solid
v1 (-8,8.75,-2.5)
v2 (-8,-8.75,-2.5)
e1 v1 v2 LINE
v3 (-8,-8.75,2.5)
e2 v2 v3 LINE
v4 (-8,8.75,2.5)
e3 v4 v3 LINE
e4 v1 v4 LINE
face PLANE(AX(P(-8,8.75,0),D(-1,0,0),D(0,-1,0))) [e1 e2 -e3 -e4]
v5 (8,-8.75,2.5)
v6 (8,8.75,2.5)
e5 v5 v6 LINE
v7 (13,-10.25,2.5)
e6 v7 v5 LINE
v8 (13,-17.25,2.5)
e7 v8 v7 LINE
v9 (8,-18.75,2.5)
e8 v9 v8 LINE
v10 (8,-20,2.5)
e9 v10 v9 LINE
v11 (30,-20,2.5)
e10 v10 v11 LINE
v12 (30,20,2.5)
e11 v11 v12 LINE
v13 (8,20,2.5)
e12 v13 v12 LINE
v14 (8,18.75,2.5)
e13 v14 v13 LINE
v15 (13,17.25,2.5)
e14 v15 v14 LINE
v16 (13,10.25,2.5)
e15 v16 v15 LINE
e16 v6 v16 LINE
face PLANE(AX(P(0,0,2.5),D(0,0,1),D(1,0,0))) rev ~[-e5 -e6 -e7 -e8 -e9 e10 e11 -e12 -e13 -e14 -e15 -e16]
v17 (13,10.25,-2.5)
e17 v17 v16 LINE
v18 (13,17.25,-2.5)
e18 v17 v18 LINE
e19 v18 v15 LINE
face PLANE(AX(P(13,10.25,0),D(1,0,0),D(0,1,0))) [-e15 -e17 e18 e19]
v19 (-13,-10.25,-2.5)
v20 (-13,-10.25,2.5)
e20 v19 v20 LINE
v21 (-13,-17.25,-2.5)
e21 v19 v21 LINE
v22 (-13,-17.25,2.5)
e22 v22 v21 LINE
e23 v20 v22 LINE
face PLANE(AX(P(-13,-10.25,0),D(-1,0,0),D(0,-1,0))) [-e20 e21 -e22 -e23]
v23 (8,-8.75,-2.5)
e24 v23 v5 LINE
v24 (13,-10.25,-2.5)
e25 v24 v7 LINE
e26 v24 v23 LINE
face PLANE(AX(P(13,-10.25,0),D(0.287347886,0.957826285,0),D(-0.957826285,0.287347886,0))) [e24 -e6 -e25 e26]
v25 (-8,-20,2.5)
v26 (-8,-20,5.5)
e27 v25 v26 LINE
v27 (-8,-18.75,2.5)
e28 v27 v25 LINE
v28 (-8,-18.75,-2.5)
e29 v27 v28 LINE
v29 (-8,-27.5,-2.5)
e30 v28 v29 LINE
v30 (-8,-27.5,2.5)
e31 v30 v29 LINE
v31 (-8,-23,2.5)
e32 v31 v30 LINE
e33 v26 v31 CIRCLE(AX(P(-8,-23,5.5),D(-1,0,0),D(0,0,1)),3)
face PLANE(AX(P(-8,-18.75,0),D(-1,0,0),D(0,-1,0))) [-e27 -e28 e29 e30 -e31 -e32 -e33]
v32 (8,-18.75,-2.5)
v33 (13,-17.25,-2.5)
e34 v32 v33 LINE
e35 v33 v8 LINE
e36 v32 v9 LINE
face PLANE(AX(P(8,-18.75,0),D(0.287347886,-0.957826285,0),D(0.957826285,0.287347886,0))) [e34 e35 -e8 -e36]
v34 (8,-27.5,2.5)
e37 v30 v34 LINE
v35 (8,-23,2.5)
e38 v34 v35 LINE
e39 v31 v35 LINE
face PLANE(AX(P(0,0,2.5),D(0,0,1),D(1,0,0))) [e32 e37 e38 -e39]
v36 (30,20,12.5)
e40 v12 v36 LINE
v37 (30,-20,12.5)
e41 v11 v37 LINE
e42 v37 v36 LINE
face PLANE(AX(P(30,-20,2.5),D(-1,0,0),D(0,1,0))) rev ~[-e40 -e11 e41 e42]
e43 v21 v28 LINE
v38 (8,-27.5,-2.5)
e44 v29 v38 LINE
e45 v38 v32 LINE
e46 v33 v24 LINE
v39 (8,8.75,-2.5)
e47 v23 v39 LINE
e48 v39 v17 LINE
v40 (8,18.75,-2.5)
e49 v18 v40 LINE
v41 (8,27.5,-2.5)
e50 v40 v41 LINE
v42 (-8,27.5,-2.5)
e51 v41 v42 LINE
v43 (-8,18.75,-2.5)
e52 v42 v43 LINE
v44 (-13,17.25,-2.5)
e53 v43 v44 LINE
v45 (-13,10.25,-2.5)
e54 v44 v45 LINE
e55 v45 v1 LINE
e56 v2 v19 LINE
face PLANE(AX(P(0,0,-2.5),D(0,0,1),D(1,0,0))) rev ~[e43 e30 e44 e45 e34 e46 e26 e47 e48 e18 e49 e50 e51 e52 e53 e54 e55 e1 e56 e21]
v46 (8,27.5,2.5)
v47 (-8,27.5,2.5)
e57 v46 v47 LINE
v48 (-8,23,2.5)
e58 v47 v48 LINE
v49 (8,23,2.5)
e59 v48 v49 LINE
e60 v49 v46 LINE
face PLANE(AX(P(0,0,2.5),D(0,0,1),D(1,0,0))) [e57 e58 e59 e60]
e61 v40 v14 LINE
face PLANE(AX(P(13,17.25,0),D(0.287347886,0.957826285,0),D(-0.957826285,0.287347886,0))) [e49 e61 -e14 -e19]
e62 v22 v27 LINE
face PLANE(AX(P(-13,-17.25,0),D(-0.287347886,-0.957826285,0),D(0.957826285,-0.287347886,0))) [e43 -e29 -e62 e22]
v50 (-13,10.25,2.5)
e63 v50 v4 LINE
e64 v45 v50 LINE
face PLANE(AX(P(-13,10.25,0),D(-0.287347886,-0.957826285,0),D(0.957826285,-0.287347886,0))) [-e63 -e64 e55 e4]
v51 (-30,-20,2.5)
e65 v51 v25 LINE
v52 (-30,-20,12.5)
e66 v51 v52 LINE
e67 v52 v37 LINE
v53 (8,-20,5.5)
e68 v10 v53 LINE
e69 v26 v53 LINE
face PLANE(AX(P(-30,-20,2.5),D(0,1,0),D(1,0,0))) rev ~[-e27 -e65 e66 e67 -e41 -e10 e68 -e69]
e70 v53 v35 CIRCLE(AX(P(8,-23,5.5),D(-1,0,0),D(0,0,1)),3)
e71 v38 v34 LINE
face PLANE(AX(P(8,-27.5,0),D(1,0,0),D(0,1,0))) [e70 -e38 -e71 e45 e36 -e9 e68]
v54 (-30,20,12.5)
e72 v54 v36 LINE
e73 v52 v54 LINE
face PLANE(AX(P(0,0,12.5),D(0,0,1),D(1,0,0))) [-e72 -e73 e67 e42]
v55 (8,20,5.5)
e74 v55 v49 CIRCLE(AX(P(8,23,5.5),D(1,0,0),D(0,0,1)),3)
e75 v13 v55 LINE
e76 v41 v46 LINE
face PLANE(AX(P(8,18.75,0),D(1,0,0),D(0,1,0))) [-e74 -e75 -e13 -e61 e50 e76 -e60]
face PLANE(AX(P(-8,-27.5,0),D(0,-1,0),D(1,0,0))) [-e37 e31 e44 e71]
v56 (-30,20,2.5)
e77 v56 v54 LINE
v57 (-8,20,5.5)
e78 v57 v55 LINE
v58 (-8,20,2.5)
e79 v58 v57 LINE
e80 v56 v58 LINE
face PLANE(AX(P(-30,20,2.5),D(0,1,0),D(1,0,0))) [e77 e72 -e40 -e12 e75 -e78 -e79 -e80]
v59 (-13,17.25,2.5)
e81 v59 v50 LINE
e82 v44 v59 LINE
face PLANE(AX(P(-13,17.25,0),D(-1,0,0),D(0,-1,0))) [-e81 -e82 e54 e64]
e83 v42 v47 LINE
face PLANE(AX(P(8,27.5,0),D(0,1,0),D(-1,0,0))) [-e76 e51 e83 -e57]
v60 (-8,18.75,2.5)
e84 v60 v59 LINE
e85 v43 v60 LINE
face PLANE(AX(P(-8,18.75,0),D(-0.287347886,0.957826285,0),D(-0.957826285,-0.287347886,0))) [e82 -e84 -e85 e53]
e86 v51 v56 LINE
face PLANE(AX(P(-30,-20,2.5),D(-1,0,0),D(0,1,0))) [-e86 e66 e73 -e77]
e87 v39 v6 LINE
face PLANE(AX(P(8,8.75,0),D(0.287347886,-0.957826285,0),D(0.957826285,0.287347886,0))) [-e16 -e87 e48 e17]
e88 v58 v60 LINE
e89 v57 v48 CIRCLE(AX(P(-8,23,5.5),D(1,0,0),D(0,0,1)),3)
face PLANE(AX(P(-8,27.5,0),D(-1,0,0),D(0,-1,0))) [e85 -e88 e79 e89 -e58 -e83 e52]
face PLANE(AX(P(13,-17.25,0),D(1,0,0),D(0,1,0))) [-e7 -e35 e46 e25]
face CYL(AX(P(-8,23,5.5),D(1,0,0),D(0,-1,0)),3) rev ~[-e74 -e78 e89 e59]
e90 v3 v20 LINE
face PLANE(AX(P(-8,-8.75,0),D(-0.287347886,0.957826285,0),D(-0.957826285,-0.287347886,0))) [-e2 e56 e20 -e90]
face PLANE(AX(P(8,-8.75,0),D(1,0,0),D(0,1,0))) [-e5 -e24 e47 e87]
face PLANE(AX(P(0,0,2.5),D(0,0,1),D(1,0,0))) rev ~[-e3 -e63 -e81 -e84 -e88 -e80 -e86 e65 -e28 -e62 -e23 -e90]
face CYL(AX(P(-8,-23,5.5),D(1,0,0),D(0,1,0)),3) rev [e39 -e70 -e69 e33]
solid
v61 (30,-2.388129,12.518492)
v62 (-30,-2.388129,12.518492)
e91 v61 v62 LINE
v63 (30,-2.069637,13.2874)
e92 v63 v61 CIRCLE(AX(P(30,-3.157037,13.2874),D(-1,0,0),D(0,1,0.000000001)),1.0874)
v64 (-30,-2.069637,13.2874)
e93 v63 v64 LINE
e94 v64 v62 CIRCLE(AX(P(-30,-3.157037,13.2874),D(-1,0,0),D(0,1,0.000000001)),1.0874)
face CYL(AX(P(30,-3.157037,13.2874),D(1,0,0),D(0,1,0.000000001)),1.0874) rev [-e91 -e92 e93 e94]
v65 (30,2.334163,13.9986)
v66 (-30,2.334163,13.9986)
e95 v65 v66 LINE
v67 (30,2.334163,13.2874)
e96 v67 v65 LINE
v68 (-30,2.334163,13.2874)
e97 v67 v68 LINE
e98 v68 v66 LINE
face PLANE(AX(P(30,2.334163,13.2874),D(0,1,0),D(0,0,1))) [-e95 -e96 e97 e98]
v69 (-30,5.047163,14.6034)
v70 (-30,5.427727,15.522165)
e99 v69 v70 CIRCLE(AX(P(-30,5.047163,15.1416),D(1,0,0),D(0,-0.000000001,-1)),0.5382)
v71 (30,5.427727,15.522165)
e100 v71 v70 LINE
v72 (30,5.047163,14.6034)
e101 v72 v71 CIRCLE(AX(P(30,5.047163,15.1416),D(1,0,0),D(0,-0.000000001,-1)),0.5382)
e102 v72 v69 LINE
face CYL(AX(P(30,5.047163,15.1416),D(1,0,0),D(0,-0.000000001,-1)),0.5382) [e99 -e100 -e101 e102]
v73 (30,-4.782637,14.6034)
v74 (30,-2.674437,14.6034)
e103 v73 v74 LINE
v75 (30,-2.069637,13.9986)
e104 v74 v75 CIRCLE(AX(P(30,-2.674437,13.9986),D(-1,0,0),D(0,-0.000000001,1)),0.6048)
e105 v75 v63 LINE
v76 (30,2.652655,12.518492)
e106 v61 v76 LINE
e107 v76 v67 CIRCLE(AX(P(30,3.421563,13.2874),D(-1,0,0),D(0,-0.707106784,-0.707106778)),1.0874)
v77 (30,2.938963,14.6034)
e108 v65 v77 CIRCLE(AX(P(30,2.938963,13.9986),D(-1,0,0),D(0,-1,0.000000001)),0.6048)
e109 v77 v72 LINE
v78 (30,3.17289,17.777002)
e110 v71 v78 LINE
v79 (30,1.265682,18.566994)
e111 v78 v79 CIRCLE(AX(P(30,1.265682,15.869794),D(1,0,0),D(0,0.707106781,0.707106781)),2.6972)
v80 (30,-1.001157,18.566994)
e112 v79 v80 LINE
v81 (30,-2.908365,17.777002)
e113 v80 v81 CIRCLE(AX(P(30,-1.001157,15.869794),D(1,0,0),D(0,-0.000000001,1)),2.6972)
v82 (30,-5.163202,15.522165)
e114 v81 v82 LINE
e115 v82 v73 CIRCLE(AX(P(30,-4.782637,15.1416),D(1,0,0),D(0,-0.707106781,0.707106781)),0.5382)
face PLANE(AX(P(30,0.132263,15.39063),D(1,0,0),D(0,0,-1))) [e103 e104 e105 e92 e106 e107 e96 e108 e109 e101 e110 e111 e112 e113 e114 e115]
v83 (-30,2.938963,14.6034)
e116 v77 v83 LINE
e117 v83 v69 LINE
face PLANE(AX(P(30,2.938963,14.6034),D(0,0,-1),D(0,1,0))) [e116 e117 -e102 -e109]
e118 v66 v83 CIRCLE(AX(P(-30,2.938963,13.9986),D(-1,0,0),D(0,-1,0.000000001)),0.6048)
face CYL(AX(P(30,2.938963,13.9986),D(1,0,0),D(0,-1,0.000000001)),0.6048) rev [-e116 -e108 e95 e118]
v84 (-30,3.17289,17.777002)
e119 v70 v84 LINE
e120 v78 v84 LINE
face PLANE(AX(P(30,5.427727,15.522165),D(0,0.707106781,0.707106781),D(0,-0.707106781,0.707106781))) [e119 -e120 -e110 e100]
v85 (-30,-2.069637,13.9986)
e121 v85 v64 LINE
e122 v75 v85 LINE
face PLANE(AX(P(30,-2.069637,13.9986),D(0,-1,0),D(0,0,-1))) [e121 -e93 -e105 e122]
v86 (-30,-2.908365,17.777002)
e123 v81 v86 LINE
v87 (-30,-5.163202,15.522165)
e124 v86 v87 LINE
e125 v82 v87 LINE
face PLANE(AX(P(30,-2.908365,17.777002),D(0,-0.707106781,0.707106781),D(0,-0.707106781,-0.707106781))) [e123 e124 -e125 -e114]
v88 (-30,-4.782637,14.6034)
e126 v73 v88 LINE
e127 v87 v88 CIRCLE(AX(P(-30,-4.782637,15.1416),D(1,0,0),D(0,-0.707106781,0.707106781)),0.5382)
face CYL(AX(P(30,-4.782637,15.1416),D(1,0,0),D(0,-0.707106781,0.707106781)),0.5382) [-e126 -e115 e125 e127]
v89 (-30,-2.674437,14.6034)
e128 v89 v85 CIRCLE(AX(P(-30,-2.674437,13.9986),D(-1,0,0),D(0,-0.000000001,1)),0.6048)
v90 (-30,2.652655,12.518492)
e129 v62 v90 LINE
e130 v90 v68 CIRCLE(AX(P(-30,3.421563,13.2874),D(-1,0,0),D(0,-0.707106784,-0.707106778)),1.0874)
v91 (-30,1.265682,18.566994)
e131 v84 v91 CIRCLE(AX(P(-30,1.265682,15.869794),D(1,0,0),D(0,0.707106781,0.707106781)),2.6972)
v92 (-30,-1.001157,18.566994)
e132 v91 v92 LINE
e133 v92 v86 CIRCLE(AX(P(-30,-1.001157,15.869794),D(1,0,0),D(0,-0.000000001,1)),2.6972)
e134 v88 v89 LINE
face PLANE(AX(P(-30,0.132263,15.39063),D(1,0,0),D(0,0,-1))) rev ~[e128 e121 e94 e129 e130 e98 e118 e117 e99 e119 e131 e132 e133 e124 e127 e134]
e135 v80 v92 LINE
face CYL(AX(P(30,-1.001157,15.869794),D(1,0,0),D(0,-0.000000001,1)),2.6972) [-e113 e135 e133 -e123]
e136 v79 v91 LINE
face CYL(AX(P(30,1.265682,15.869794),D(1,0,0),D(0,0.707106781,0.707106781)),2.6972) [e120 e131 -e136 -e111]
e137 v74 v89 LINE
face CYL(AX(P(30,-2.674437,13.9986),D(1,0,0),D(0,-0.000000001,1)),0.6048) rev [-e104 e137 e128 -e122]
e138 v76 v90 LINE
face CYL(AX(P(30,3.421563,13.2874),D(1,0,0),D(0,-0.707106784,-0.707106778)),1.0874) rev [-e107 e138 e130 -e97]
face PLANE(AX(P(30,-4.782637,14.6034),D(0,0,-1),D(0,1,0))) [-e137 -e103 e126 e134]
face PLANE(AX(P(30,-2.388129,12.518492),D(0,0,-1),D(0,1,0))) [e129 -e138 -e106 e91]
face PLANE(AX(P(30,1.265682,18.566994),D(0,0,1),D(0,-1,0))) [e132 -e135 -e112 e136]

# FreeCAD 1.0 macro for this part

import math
import FreeCAD as App
import Part
import Sketcher
from FreeCAD import Vector
Q = App.Units.Quantity


def edges_at(feature, points):
    """Names of the edges that pass closest to the given points."""
    edges = feature.Shape.Edges
    near = lambda p: min(range(len(edges)), key=lambda i: edges[i].distToShape(Part.Vertex(*p))[0])
    return sorted({f"Edge{near(p) + 1}" for p in points})


def add_polygon(sketch, points):
    """Adds a closed chain of lines whose ends are joined by coincident constraints."""
    first, n = sketch.GeometryCount, len(points)
    for a, b in zip(points, points[1:] + points[:1]):
        sketch.addGeometry(Part.LineSegment(App.Vector(*a, 0), App.Vector(*b, 0)), False)
    for i in range(n):
        sketch.addConstraint(Sketcher.Constraint("Coincident", first + i, 2, first + (i + 1) % n, 1))

doc = App.newDocument("Part")
params = doc.addObject("Spreadsheet::Sheet", "Params")
for row, (alias, value) in enumerate([
    ("sketch1_width", "16 mm"),
    ("sketch1_height", "7 mm"),
    ("sketch1_height2", "17.5 mm"),
    ("sketch1_height3", "8.75 mm"),
    ("pad1_length", "5 mm"),
    ("sketch2_width", "60 mm"),
    ("sketch2_height", "40 mm"),
    ("pad2_length", "10 mm"),
    ("fillet_radius", "3 mm"),
    ("pad3_length", "60 mm"),
], start=1):
    params.set(f"A{row}", alias)
    params.set(f"B{row}", "=" + value)
    params.setAlias(f"B{row}", alias)

body = doc.addObject("PartDesign::Body", "Body")

sketch1 = doc.addObject("Sketcher::SketchObject", "Sketch")
body.addObject(sketch1)
sketch1.AttachmentSupport = (doc.XY_Plane, [""])
sketch1.MapMode = "FlatFace"
add_polygon(sketch1, [(-8, -28), (8, -28), (8, -19), (13, -17), (13, -10), (8, -9), (8, 9), (13, 10), (13, 17), (8, 19), (8, 28), (-8, 28), (-8, 19), (-13, 17), (-13, 10), (-8, 9), (-8, -9), (-13, -10), (-13, -17), (-8, -19)])
sketch1.addConstraint([
    Sketcher.Constraint("Horizontal", 0),
    Sketcher.Constraint("Vertical", 1),
    Sketcher.Constraint("Vertical", 3),
    Sketcher.Constraint("Vertical", 5),
    Sketcher.Constraint("Vertical", 7),
    Sketcher.Constraint("Vertical", 9),
    Sketcher.Constraint("Horizontal", 10),
    Sketcher.Constraint("Vertical", 11),
    Sketcher.Constraint("Vertical", 13),
    Sketcher.Constraint("Vertical", 15),
    Sketcher.Constraint("Vertical", 17),
    Sketcher.Constraint("Vertical", 19),
    Sketcher.Constraint("Symmetric", 0, 2, 10, 2, -1, 1),
    Sketcher.Constraint("Symmetric", 2, 2, 12, 2, -1, 1),
    Sketcher.Constraint("Symmetric", 4, 2, 14, 2, -1, 1),
    Sketcher.Constraint("Symmetric", 6, 2, 16, 2, -1, 1),
    Sketcher.Constraint("Symmetric", 8, 2, 18, 2, -1, 1),
    Sketcher.Constraint("Symmetric", 8, 2, 11, 2, -2),
    Sketcher.Constraint("Symmetric", 7, 2, 12, 2, -2),
    Sketcher.Constraint("Parallel", 2, 6),
    Sketcher.Constraint("Parallel", 4, 8),
    Sketcher.Constraint("Parallel", 6, 12),
    Sketcher.Constraint("Parallel", 8, 14),
    Sketcher.Constraint("Parallel", 12, 16),
    Sketcher.Constraint("Parallel", 14, 18),
    Sketcher.Constraint("Horizontal", 6, 2, 13, 2),
    Sketcher.Constraint("Vertical", 1, 2, 4, 2),
    Sketcher.Constraint("DistanceX", 0, 1, 0, 2, Q("16 mm")),
    Sketcher.Constraint("DistanceY", 3, 1, 3, 2, Q("7 mm")),
    Sketcher.Constraint("DistanceY", 5, 1, 5, 2, Q("17.5 mm")),
    Sketcher.Constraint("DistanceX", -1, 1, 2, 2, Q("13 mm")),
    Sketcher.Constraint("DistanceY", 1, 2, 4, 2, Q("10 mm")),
    Sketcher.Constraint("DistanceY", 1, 1, 1, 2, Q("8.75 mm")),
])
sketch1.setExpression("Constraints[47]", "Params.sketch1_width")
sketch1.setExpression("Constraints[48]", "Params.sketch1_height")
sketch1.setExpression("Constraints[49]", "Params.sketch1_height2")
sketch1.setExpression("Constraints[52]", "Params.sketch1_height3")
pad1 = doc.addObject("PartDesign::Pad", "Pad")
body.addObject(pad1)
pad1.Profile = sketch1
pad1.setExpression("Length", "Params.pad1_length")
pad1.Midplane = True

sketch2 = doc.addObject("Sketcher::SketchObject", "Sketch001")
body.addObject(sketch2)
sketch2.AttachmentSupport = (doc.XY_Plane, [""])
sketch2.MapMode = "FlatFace"
sketch2.AttachmentOffset = App.Placement(Vector(0, 0, 2.5), App.Rotation())
add_polygon(sketch2, [(-30, 20), (-30, -20), (30, -20), (30, 20)])
sketch2.addConstraint([
    Sketcher.Constraint("Vertical", 0),
    Sketcher.Constraint("Horizontal", 1),
    Sketcher.Constraint("Vertical", 2),
    Sketcher.Constraint("Horizontal", 3),
    Sketcher.Constraint("Symmetric", 0, 2, 2, 2, -1, 1),
    Sketcher.Constraint("DistanceX", 1, 1, 1, 2, Q("60 mm")),
    Sketcher.Constraint("DistanceY", 0, 2, 0, 1, Q("40 mm")),
])
sketch2.setExpression("Constraints[9]", "Params.sketch2_width")
sketch2.setExpression("Constraints[10]", "Params.sketch2_height")
pad2 = doc.addObject("PartDesign::Pad", "Pad001")
body.addObject(pad2)
pad2.Profile = sketch2
pad2.setExpression("Length", "Params.pad2_length")
doc.recompute()

fillet = doc.addObject("PartDesign::Fillet", "Fillet")
body.addObject(fillet)
fillet.Base = (pad2, edges_at(pad2, [(0, -20, 2.5), (0, 20, 2.5)]))
fillet.setExpression("Radius", "Params.fillet_radius")
body2 = doc.addObject("PartDesign::Body", "Body001")

sketch3 = doc.addObject("Sketcher::SketchObject", "Sketch002")
body2.addObject(sketch3)
sketch3.AttachmentSupport = (doc.getObject("YZ_Plane001"), [""])
sketch3.MapMode = "FlatFace"
sketch3.AttachmentOffset = App.Placement(Vector(0, 0, 30), App.Rotation())
sketch3.addGeometry([
    Part.ArcOfCircle(Part.Circle(Vector(5, 15.1, 0), Vector(0, 0, 1), 0.5), math.radians(-90), math.radians(45)),
    Part.LineSegment(Vector(5.4, 15.5, 0), Vector(3.2, 17.8, 0)),
    Part.ArcOfCircle(Part.Circle(Vector(1.3, 15.9, 0), Vector(0, 0, 1), 2.7), math.radians(45), math.radians(90)),
    Part.LineSegment(Vector(1.3, 18.6, 0), Vector(-1, 18.6, 0)),
    Part.ArcOfCircle(Part.Circle(Vector(-1, 15.9, 0), Vector(0, 0, 1), 2.7), math.radians(90), math.radians(135)),
    Part.LineSegment(Vector(-2.9, 17.8, 0), Vector(-5.2, 15.5, 0)),
    Part.ArcOfCircle(Part.Circle(Vector(-4.8, 15.1, 0), Vector(0, 0, 1), 0.5), math.radians(135), math.radians(270)),
    Part.LineSegment(Vector(-4.8, 14.6, 0), Vector(-2.7, 14.6, 0)),
    Part.ArcOfCircle(Part.Circle(Vector(-2.7, 14, 0), Vector(0, 0, 1), 0.6), math.radians(0), math.radians(90)),
    Part.LineSegment(Vector(-2.1, 14, 0), Vector(-2.1, 13.3, 0)),
    Part.ArcOfCircle(Part.Circle(Vector(-3.2, 13.3, 0), Vector(0, 0, 1), 1.1), math.radians(-45), math.radians(0)),
    Part.LineSegment(Vector(-2.4, 12.5, 0), Vector(2.7, 12.5, 0)),
    Part.ArcOfCircle(Part.Circle(Vector(3.4, 13.3, 0), Vector(0, 0, 1), 1.1), math.radians(-180), math.radians(-135)),
    Part.LineSegment(Vector(2.3, 13.3, 0), Vector(2.3, 14, 0)),
    Part.ArcOfCircle(Part.Circle(Vector(2.9, 14, 0), Vector(0, 0, 1), 0.6), math.radians(90), math.radians(180)),
    Part.LineSegment(Vector(2.9, 14.6, 0), Vector(5, 14.6, 0)),
], False)
sketch3.addConstraint([
    Sketcher.Constraint("Tangent", 0, 2, 1, 1),
    Sketcher.Constraint("Tangent", 1, 2, 2, 1),
    Sketcher.Constraint("Tangent", 2, 2, 3, 1),
    Sketcher.Constraint("Tangent", 3, 2, 4, 1),
    Sketcher.Constraint("Tangent", 4, 2, 5, 1),
    Sketcher.Constraint("Tangent", 5, 2, 6, 1),
    Sketcher.Constraint("Tangent", 6, 2, 7, 1),
    Sketcher.Constraint("Tangent", 7, 2, 8, 2),
    Sketcher.Constraint("Tangent", 8, 1, 9, 1),
    Sketcher.Constraint("Tangent", 9, 2, 10, 2),
    Sketcher.Constraint("Coincident", 10, 1, 11, 1),
    Sketcher.Constraint("Coincident", 11, 2, 12, 2),
    Sketcher.Constraint("Tangent", 12, 1, 13, 1),
    Sketcher.Constraint("Tangent", 13, 2, 14, 2),
    Sketcher.Constraint("Tangent", 14, 1, 15, 1),
    Sketcher.Constraint("Tangent", 15, 2, 0, 1),
    Sketcher.Constraint("Horizontal", 3),
    Sketcher.Constraint("Horizontal", 7),
    Sketcher.Constraint("Vertical", 9),
    Sketcher.Constraint("Horizontal", 11),
    Sketcher.Constraint("Vertical", 13),
    Sketcher.Constraint("Horizontal", 15),
    Sketcher.Constraint("Equal", 2, 4),
    Sketcher.Constraint("Equal", 0, 6),
    Sketcher.Constraint("Equal", 10, 12),
    Sketcher.Constraint("Equal", 8, 14),
    Sketcher.Constraint("Perpendicular", 1, 5),
    Sketcher.Constraint("Horizontal", 0, 3, 6, 3),
    Sketcher.Constraint("Horizontal", 10, 3, 12, 3),
    Sketcher.Constraint("Horizontal", 1, 2, 4, 2),
    Sketcher.Constraint("Equal", 7, 15),
    Sketcher.Constraint("Radius", 0, Q("0.5382 mm")),
    Sketcher.Constraint("Radius", 2, Q("2.6972 mm")),
    Sketcher.Constraint("Radius", 8, Q("0.6048 mm")),
    Sketcher.Constraint("Radius", 10, Q("1.0874 mm")),
    Sketcher.Constraint("DistanceX", 7, 1, 7, 2, Q("2.1082 mm")),
    Sketcher.Constraint("DistanceY", 9, 2, 9, 1, Q("0.7112 mm")),
    Sketcher.Constraint("DistanceX", 8, 3, 12, 3, Q("6.096 mm")),
    Sketcher.Constraint("DistanceX", 3, 2, 3, 1, Q("2.266838 mm")),
    Sketcher.Constraint("DistanceY", -1, 1, 0, 3, Q("15.1416 mm")),
    Sketcher.Constraint("DistanceY", 11, 2, 2, 3, Q("3.351302 mm")),
    Sketcher.Constraint("DistanceX", -1, 1, 2, 3, Q("1.265682 mm")),
])
pad3 = doc.addObject("PartDesign::Pad", "Pad002")
body2.addObject(pad3)
pad3.Profile = sketch3
pad3.setExpression("Length", "Params.pad3_length")
pad3.Reversed = True

doc.recompute()
